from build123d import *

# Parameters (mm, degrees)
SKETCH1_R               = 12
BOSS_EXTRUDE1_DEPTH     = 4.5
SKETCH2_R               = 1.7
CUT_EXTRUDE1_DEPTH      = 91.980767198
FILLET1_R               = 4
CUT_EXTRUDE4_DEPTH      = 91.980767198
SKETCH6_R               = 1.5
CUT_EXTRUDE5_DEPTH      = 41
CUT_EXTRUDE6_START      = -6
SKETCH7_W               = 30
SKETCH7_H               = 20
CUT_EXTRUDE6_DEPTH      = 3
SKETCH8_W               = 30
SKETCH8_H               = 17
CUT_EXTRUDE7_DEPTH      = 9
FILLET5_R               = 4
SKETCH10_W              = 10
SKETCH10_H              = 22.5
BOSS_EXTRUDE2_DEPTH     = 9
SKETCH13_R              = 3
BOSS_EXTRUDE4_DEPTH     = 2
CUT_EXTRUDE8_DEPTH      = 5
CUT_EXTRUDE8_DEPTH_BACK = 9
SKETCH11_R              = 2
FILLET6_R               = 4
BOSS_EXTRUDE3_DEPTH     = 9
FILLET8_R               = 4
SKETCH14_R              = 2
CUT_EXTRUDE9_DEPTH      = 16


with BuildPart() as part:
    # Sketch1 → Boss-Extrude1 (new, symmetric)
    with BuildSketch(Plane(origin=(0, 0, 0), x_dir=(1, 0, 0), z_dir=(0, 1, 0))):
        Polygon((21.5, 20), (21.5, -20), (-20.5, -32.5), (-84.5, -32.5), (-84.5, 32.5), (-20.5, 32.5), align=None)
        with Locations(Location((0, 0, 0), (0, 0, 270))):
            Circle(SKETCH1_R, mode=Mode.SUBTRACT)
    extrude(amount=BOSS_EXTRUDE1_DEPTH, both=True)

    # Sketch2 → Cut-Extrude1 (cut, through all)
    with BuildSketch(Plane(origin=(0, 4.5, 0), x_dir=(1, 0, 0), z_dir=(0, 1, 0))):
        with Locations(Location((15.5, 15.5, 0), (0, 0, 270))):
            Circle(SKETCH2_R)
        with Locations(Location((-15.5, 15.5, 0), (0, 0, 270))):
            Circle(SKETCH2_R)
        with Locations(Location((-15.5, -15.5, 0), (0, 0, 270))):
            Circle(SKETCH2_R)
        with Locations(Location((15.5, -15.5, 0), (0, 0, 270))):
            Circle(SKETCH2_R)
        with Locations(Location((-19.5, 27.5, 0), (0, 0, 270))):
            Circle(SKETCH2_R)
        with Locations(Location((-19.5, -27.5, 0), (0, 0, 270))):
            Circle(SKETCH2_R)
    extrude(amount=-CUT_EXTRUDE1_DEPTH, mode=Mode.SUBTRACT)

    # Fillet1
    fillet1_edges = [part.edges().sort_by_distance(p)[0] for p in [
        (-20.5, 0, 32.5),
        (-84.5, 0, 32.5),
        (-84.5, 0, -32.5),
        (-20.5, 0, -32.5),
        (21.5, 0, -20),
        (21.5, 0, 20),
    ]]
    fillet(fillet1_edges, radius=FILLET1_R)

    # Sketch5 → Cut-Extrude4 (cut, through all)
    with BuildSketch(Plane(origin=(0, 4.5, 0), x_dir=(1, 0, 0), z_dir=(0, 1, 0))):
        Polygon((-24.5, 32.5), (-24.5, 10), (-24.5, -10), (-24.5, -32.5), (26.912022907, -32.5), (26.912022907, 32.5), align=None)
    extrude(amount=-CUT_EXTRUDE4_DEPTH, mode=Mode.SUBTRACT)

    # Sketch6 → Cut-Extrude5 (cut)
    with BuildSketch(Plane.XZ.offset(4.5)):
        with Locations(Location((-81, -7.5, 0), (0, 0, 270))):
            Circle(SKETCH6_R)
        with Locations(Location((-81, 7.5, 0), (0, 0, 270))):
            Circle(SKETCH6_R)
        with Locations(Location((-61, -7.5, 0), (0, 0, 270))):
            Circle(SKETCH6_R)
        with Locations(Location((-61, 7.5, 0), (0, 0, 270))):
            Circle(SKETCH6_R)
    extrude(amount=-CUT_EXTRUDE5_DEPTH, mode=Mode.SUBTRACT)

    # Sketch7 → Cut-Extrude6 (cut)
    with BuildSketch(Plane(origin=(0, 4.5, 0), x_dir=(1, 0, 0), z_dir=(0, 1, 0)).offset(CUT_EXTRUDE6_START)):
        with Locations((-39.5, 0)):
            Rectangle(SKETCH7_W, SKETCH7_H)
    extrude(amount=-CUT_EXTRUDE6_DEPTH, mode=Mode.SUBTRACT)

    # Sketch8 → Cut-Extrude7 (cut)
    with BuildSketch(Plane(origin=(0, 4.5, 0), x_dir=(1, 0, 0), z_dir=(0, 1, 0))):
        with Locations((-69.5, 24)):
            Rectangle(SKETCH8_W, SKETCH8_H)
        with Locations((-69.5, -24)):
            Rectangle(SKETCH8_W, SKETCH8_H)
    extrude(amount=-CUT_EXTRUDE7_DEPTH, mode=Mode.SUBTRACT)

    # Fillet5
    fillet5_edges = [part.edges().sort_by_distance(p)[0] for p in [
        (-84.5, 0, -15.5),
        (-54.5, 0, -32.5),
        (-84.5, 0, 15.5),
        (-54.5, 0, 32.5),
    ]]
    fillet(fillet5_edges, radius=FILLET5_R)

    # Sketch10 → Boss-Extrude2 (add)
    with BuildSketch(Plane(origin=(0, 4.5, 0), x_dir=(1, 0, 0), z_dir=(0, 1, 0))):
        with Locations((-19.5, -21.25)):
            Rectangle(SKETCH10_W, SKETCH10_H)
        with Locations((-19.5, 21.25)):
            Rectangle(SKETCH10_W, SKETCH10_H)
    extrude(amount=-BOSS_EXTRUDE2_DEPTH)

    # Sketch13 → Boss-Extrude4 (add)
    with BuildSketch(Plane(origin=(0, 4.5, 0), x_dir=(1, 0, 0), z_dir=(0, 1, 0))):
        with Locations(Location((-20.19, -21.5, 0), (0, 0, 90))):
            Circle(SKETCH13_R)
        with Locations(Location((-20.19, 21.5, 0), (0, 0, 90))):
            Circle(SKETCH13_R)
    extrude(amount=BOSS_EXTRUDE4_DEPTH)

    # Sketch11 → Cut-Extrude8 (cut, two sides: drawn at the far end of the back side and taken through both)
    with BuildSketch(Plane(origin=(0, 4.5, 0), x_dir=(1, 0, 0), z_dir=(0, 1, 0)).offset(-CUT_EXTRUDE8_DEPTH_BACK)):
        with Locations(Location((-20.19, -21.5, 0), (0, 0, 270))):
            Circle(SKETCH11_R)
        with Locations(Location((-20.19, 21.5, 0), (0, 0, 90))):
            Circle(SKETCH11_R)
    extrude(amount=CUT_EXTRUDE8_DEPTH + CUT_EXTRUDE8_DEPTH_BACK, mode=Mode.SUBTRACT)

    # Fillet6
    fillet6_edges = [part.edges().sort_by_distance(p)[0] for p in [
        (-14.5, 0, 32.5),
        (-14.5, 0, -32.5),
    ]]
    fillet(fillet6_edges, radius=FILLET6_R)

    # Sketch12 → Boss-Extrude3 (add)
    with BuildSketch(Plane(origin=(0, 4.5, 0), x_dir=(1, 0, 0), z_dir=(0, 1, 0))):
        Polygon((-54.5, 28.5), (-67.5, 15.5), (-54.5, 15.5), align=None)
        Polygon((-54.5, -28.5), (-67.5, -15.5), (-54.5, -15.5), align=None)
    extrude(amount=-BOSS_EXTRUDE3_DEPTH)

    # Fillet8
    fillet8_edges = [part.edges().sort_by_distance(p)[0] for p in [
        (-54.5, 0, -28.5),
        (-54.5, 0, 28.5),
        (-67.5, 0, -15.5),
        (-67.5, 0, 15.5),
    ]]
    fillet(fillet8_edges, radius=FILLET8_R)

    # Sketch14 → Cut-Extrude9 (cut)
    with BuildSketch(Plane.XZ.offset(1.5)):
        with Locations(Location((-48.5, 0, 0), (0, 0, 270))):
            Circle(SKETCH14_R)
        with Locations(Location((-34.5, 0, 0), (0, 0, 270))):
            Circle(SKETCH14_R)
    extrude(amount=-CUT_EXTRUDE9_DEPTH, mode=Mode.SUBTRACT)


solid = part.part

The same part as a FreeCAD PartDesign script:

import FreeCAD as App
import Part
import Sketcher
from FreeCAD import Vector
Q = App.Units.Quantity


def edges_at(feature, points):
    """Names of the edges that pass closest to the given points."""
    edges = feature.Shape.Edges
    near = lambda p: min(range(len(edges)), key=lambda i: edges[i].distToShape(Part.Vertex(*p))[0])
    return sorted({f"Edge{near(p) + 1}" for p in points})


def add_polygon(sketch, points):
    """Adds a closed chain of lines whose ends are joined by coincident constraints."""
    first, n = sketch.GeometryCount, len(points)
    for a, b in zip(points, points[1:] + points[:1]):
        sketch.addGeometry(Part.LineSegment(App.Vector(*a, 0), App.Vector(*b, 0)), False)
    for i in range(n):
        sketch.addConstraint(Sketcher.Constraint("Coincident", first + i, 2, first + (i + 1) % n, 1))

doc = App.newDocument("Part")
body = doc.addObject("PartDesign::Body", "Body")

sketch1 = body.newObject("Sketcher::SketchObject", "Sketch")
sketch1.AttachmentSupport = (doc.getObject("XZ_Plane"), [""])
sketch1.MapMode = "FlatFace"
add_polygon(sketch1, [(21.5, 20), (21.5, -20), (-20.5, -32.5), (-84.5, -32.5), (-84.5, 32.5), (-20.5, 32.5)])
sketch1.addGeometry(Part.Circle(Vector(0, 0, 0), Vector(0, 0, 1), 12), False)
sketch1.addConstraint(Sketcher.Constraint("Vertical", 0))
sketch1.addConstraint(Sketcher.Constraint("Horizontal", 2))
sketch1.addConstraint(Sketcher.Constraint("Vertical", 3))
sketch1.addConstraint(Sketcher.Constraint("Horizontal", 4))
sketch1.addConstraint(Sketcher.Constraint("Coincident", 6, 3, -1, 1))
sketch1.addConstraint(Sketcher.Constraint("Symmetric", 1, 2, 4, 2, -1))
sketch1.addConstraint(Sketcher.Constraint("Equal", 1, 5))
sketch1.addConstraint(Sketcher.Constraint("Diameter", 6, Q("24 mm")))
sketch1.addConstraint(Sketcher.Constraint("DistanceX", 2, 2, 2, 1, Q("64 mm")))
sketch1.addConstraint(Sketcher.Constraint("DistanceY", 0, 2, 0, 1, Q("40 mm")))
sketch1.addConstraint(Sketcher.Constraint("DistanceY", 3, 1, 3, 2, Q("65 mm")))
sketch1.addConstraint(Sketcher.Constraint("DistanceX", 1, 2, 0, 2, Q("42 mm")))
sketch1.addConstraint(Sketcher.Constraint("DistanceX", -1, 1, 0, 2, Q("21.5 mm")))
pad1 = body.newObject("PartDesign::Pad", "Pad")
pad1.Profile = sketch1
pad1.Length = 9
pad1.Midplane = True

sketch2 = body.newObject("Sketcher::SketchObject", "Sketch001")
sketch2.AttachmentSupport = (doc.getObject("XZ_Plane"), [""])
sketch2.MapMode = "FlatFace"
sketch2.AttachmentOffset = App.Placement(Vector(0, 0, -4.5), App.Rotation())
sketch2.addGeometry(Part.Circle(Vector(15.5, -15.5, 0), Vector(0, 0, 1), 1.7), False)
sketch2.addGeometry(Part.Circle(Vector(-15.5, -15.5, 0), Vector(0, 0, 1), 1.7), False)
sketch2.addGeometry(Part.Circle(Vector(-15.5, 15.5, 0), Vector(0, 0, 1), 1.7), False)
sketch2.addGeometry(Part.Circle(Vector(15.5, 15.5, 0), Vector(0, 0, 1), 1.7), False)
sketch2.addGeometry(Part.Circle(Vector(-19.5, -27.5, 0), Vector(0, 0, 1), 1.7), False)
sketch2.addGeometry(Part.Circle(Vector(-19.5, 27.5, 0), Vector(0, 0, 1), 1.7), False)
sketch2.addConstraint(Sketcher.Constraint("Equal", 0, 1))
sketch2.addConstraint(Sketcher.Constraint("Equal", 1, 2))
sketch2.addConstraint(Sketcher.Constraint("Equal", 2, 3))
sketch2.addConstraint(Sketcher.Constraint("Equal", 3, 4))
sketch2.addConstraint(Sketcher.Constraint("Equal", 4, 5))
sketch2.addConstraint(Sketcher.Constraint("Symmetric", 0, 3, 2, 3, -1, 1))
sketch2.addConstraint(Sketcher.Constraint("Symmetric", 1, 3, 3, 3, -1, 1))
sketch2.addConstraint(Sketcher.Constraint("Symmetric", 0, 3, 1, 3, -2))
sketch2.addConstraint(Sketcher.Constraint("Symmetric", 4, 3, 5, 3, -1))
sketch2.addConstraint(Sketcher.Constraint("Diameter", 0, Q("3.4 mm")))
sketch2.addConstraint(Sketcher.Constraint("DistanceX", 1, 3, 0, 3, Q("31 mm")))
sketch2.addConstraint(Sketcher.Constraint("DistanceY", 1, 3, 2, 3, Q("31 mm")))
sketch2.addConstraint(Sketcher.Constraint("DistanceX", 4, 3, 1, 3, Q("4 mm")))
sketch2.addConstraint(Sketcher.Constraint("DistanceY", 4, 3, 1, 3, Q("12 mm")))
pocket1 = body.newObject("PartDesign::Pocket", "Pocket")
pocket1.Profile = sketch2
pocket1.Type = "ThroughAll"
pocket1.Reversed = True
doc.recompute()

fillet = body.newObject("PartDesign::Fillet", "Fillet")
fillet.Base = (pocket1, edges_at(pocket1, [
    (-20.5, 0, 32.5),
    (-84.5, 0, 32.5),
    (-84.5, 0, -32.5),
    (-20.5, 0, -32.5),
    (21.5, 0, -20),
    (21.5, 0, 20),
]))
fillet.Radius = 4

sketch3 = body.newObject("Sketcher::SketchObject", "Sketch002")
sketch3.AttachmentSupport = (doc.getObject("XZ_Plane"), [""])
sketch3.MapMode = "FlatFace"
sketch3.AttachmentOffset = App.Placement(Vector(0, 0, -4.5), App.Rotation())
add_polygon(sketch3, [(-24.5, -32.5), (-24.5, 32.5), (26.912023, 32.5), (26.912023, -32.5)])
sketch3.addConstraint(Sketcher.Constraint("Vertical", 0))
sketch3.addConstraint(Sketcher.Constraint("Horizontal", 1))
sketch3.addConstraint(Sketcher.Constraint("Vertical", 2))
sketch3.addConstraint(Sketcher.Constraint("Horizontal", 3))
sketch3.addConstraint(Sketcher.Constraint("DistanceY", 0, 1, 0, 2, Q("65 mm")))
sketch3.addConstraint(Sketcher.Constraint("DistanceX", 0, 2, -1, 1, Q("24.5 mm")))
sketch3.addConstraint(Sketcher.Constraint("DistanceY", -1, 1, 0, 2, Q("32.5 mm")))
sketch3.addConstraint(Sketcher.Constraint("DistanceX", 1, 1, 1, 2, Q("51.412023 mm")))
pocket2 = body.newObject("PartDesign::Pocket", "Pocket001")
pocket2.Profile = sketch3
pocket2.Type = "ThroughAll"
pocket2.Reversed = True

sketch4 = body.newObject("Sketcher::SketchObject", "Sketch003")
sketch4.AttachmentSupport = (doc.getObject("XZ_Plane"), [""])
sketch4.MapMode = "FlatFace"
sketch4.AttachmentOffset = App.Placement(Vector(0, 0, 4.5), App.Rotation())
sketch4.addGeometry(Part.Circle(Vector(-81, -7.5, 0), Vector(0, 0, 1), 1.5), False)
sketch4.addGeometry(Part.Circle(Vector(-81, 7.5, 0), Vector(0, 0, 1), 1.5), False)
sketch4.addGeometry(Part.Circle(Vector(-61, -7.5, 0), Vector(0, 0, 1), 1.5), False)
sketch4.addGeometry(Part.Circle(Vector(-61, 7.5, 0), Vector(0, 0, 1), 1.5), False)
sketch4.addConstraint(Sketcher.Constraint("Equal", 0, 1))
sketch4.addConstraint(Sketcher.Constraint("Equal", 1, 2))
sketch4.addConstraint(Sketcher.Constraint("Equal", 2, 3))
sketch4.addConstraint(Sketcher.Constraint("Symmetric", 0, 3, 1, 3, -1))
sketch4.addConstraint(Sketcher.Constraint("Symmetric", 2, 3, 3, 3, -1))
sketch4.addConstraint(Sketcher.Constraint("Horizontal", 0, 3, 2, 3))
sketch4.addConstraint(Sketcher.Constraint("Diameter", 0, Q("3 mm")))
sketch4.addConstraint(Sketcher.Constraint("DistanceX", 0, 3, -1, 1, Q("81 mm")))
sketch4.addConstraint(Sketcher.Constraint("DistanceX", 2, 3, -1, 1, Q("61 mm")))
sketch4.addConstraint(Sketcher.Constraint("DistanceY", 0, 3, 1, 3, Q("15 mm")))
pocket3 = body.newObject("PartDesign::Pocket", "Pocket002")
pocket3.Profile = sketch4
pocket3.Length = 41

sketch5 = body.newObject("Sketcher::SketchObject", "Sketch004")
sketch5.AttachmentSupport = (doc.getObject("XZ_Plane"), [""])
sketch5.MapMode = "FlatFace"
sketch5.AttachmentOffset = App.Placement(Vector(0, 0, 1.5), App.Rotation())
add_polygon(sketch5, [(-54.5, -10), (-54.5, 10), (-24.5, 10), (-24.5, -10)])
sketch5.addConstraint(Sketcher.Constraint("Vertical", 0))
sketch5.addConstraint(Sketcher.Constraint("Horizontal", 1))
sketch5.addConstraint(Sketcher.Constraint("Vertical", 2))
sketch5.addConstraint(Sketcher.Constraint("Horizontal", 3))
sketch5.addConstraint(Sketcher.Constraint("DistanceX", 1, 1, 1, 2, Q("30 mm")))
sketch5.addConstraint(Sketcher.Constraint("DistanceY", 0, 1, 0, 2, Q("20 mm")))
sketch5.addConstraint(Sketcher.Constraint("DistanceY", -1, 1, 0, 2, Q("10 mm")))
sketch5.addConstraint(Sketcher.Constraint("DistanceX", 0, 2, -1, 1, Q("54.5 mm")))
pocket4 = body.newObject("PartDesign::Pocket", "Pocket003")
pocket4.Profile = sketch5
pocket4.Length = 3
pocket4.Reversed = True

sketch6 = body.newObject("Sketcher::SketchObject", "Sketch005")
sketch6.AttachmentSupport = (doc.getObject("XZ_Plane"), [""])
sketch6.MapMode = "FlatFace"
sketch6.AttachmentOffset = App.Placement(Vector(0, 0, -4.5), App.Rotation())
add_polygon(sketch6, [(-84.5, -32.5), (-84.5, -15.5), (-54.5, -15.5), (-54.5, -32.5)])
add_polygon(sketch6, [(-84.5, 15.5), (-84.5, 32.5), (-54.5, 32.5), (-54.5, 15.5)])
sketch6.addConstraint(Sketcher.Constraint("Vertical", 0))
sketch6.addConstraint(Sketcher.Constraint("Horizontal", 1))
sketch6.addConstraint(Sketcher.Constraint("Vertical", 2))
sketch6.addConstraint(Sketcher.Constraint("Horizontal", 3))
sketch6.addConstraint(Sketcher.Constraint("Vertical", 4))
sketch6.addConstraint(Sketcher.Constraint("Horizontal", 5))
sketch6.addConstraint(Sketcher.Constraint("Vertical", 6))
sketch6.addConstraint(Sketcher.Constraint("Horizontal", 7))
sketch6.addConstraint(Sketcher.Constraint("Symmetric", 3, 2, 4, 2, -1))
sketch6.addConstraint(Sketcher.Constraint("Symmetric", 1, 2, 6, 2, -1))
sketch6.addConstraint(Sketcher.Constraint("DistanceX", 1, 1, 1, 2, Q("30 mm")))
sketch6.addConstraint(Sketcher.Constraint("DistanceY", 0, 1, 0, 2, Q("17 mm")))
sketch6.addConstraint(Sketcher.Constraint("DistanceY", 0, 2, 4, 2, Q("48 mm")))
sketch6.addConstraint(Sketcher.Constraint("DistanceX", 0, 2, -1, 1, Q("84.5 mm")))
pocket5 = body.newObject("PartDesign::Pocket", "Pocket004")
pocket5.Profile = sketch6
pocket5.Length = 9
pocket5.Reversed = True
doc.recompute()

fillet2 = body.newObject("PartDesign::Fillet", "Fillet001")
fillet2.Base = (pocket5, edges_at(pocket5, [
    (-84.5, 0, -15.5),
    (-54.5, 0, -32.5),
    (-84.5, 0, 15.5),
    (-54.5, 0, 32.5),
]))
fillet2.Radius = 4

sketch7 = body.newObject("Sketcher::SketchObject", "Sketch006")
sketch7.AttachmentSupport = (doc.getObject("XZ_Plane"), [""])
sketch7.MapMode = "FlatFace"
sketch7.AttachmentOffset = App.Placement(Vector(0, 0, -4.5), App.Rotation())
add_polygon(sketch7, [(-24.5, 10), (-24.5, 32.5), (-14.5, 32.5), (-14.5, 10)])
add_polygon(sketch7, [(-24.5, -32.5), (-24.5, -10), (-14.5, -10), (-14.5, -32.5)])
sketch7.addConstraint(Sketcher.Constraint("Vertical", 0))
sketch7.addConstraint(Sketcher.Constraint("Horizontal", 1))
sketch7.addConstraint(Sketcher.Constraint("Vertical", 2))
sketch7.addConstraint(Sketcher.Constraint("Horizontal", 3))
sketch7.addConstraint(Sketcher.Constraint("Vertical", 4))
sketch7.addConstraint(Sketcher.Constraint("Horizontal", 5))
sketch7.addConstraint(Sketcher.Constraint("Vertical", 6))
sketch7.addConstraint(Sketcher.Constraint("Horizontal", 7))
sketch7.addConstraint(Sketcher.Constraint("Symmetric", 3, 2, 4, 2, -1))
sketch7.addConstraint(Sketcher.Constraint("Symmetric", 1, 2, 6, 2, -1))
sketch7.addConstraint(Sketcher.Constraint("DistanceX", 1, 1, 1, 2, Q("10 mm")))
sketch7.addConstraint(Sketcher.Constraint("DistanceY", 0, 1, 0, 2, Q("22.5 mm")))
sketch7.addConstraint(Sketcher.Constraint("DistanceY", -1, 1, 2, 2, Q("10 mm")))
sketch7.addConstraint(Sketcher.Constraint("DistanceX", 0, 2, -1, 1, Q("24.5 mm")))
pad2 = body.newObject("PartDesign::Pad", "Pad001")
pad2.Profile = sketch7
pad2.Length = 9

sketch8 = body.newObject("Sketcher::SketchObject", "Sketch007")
sketch8.AttachmentSupport = (doc.getObject("XZ_Plane"), [""])
sketch8.MapMode = "FlatFace"
sketch8.AttachmentOffset = App.Placement(Vector(0, 0, -4.5), App.Rotation())
sketch8.addGeometry(Part.Circle(Vector(-20.19, 21.5, 0), Vector(0, 0, 1), 3), False)
sketch8.addGeometry(Part.Circle(Vector(-20.19, -21.5, 0), Vector(0, 0, 1), 3), False)
sketch8.addConstraint(Sketcher.Constraint("Equal", 0, 1))
sketch8.addConstraint(Sketcher.Constraint("Symmetric", 0, 3, 1, 3, -1))
sketch8.addConstraint(Sketcher.Constraint("Diameter", 0, Q("6 mm")))
sketch8.addConstraint(Sketcher.Constraint("DistanceY", 1, 3, 0, 3, Q("43 mm")))
sketch8.addConstraint(Sketcher.Constraint("DistanceX", 0, 3, -1, 1, Q("20.19 mm")))
pad3 = body.newObject("PartDesign::Pad", "Pad002")
pad3.Profile = sketch8
pad3.Length = 2
pad3.Reversed = True

sketch9 = body.newObject("Sketcher::SketchObject", "Sketch008")
sketch9.AttachmentSupport = (doc.getObject("XZ_Plane"), [""])
sketch9.MapMode = "FlatFace"
sketch9.AttachmentOffset = App.Placement(Vector(0, 0, -4.5), App.Rotation())
sketch9.addGeometry(Part.Circle(Vector(-20.19, 21.5, 0), Vector(0, 0, 1), 2), False)
sketch9.addGeometry(Part.Circle(Vector(-20.19, -21.5, 0), Vector(0, 0, 1), 2), False)
sketch9.addConstraint(Sketcher.Constraint("Equal", 0, 1))
sketch9.addConstraint(Sketcher.Constraint("Symmetric", 0, 3, 1, 3, -1))
sketch9.addConstraint(Sketcher.Constraint("Diameter", 0, Q("4 mm")))
sketch9.addConstraint(Sketcher.Constraint("DistanceY", 1, 3, 0, 3, Q("43 mm")))
sketch9.addConstraint(Sketcher.Constraint("DistanceX", 0, 3, -1, 1, Q("20.19 mm")))
pocket6 = body.newObject("PartDesign::Pocket", "Pocket005")
pocket6.Profile = sketch9
pocket6.Type = "ThroughAll"
pocket6.Midplane = True
doc.recompute()

fillet3 = body.newObject("PartDesign::Fillet", "Fillet002")
fillet3.Base = (pocket6, edges_at(pocket6, [(-14.5, 0, 32.5), (-14.5, 0, -32.5)]))
fillet3.Radius = 4

sketch10 = body.newObject("Sketcher::SketchObject", "Sketch009")
sketch10.AttachmentSupport = (doc.getObject("XZ_Plane"), [""])
sketch10.MapMode = "FlatFace"
sketch10.AttachmentOffset = App.Placement(Vector(0, 0, -4.5), App.Rotation())
add_polygon(sketch10, [(-54.5, -28.5), (-67.5, -15.5), (-54.5, -15.5)])
add_polygon(sketch10, [(-67.5, 15.5), (-54.5, 28.5), (-54.5, 15.5)])
sketch10.addConstraint(Sketcher.Constraint("Horizontal", 1))
sketch10.addConstraint(Sketcher.Constraint("Vertical", 2))
sketch10.addConstraint(Sketcher.Constraint("Vertical", 4))
sketch10.addConstraint(Sketcher.Constraint("Horizontal", 5))
sketch10.addConstraint(Sketcher.Constraint("Symmetric", 2, 2, 3, 2, -1))
sketch10.addConstraint(Sketcher.Constraint("Symmetric", 0, 2, 5, 2, -1))
sketch10.addConstraint(Sketcher.Constraint("Perpendicular", 0, 3))
sketch10.addConstraint(Sketcher.Constraint("DistanceX", 1, 1, 1, 2, Q("13 mm")))
sketch10.addConstraint(Sketcher.Constraint("DistanceY", 1, 2, 3, 2, Q("44 mm")))
sketch10.addConstraint(Sketcher.Constraint("DistanceX", 0, 2, -1, 1, Q("67.5 mm")))
pad4 = body.newObject("PartDesign::Pad", "Pad003")
pad4.Profile = sketch10
pad4.Length = 9
doc.recompute()

fillet4 = body.newObject("PartDesign::Fillet", "Fillet003")
fillet4.Base = (pad4, edges_at(pad4, [
    (-54.5, 0, -28.5),
    (-54.5, 0, 28.5),
    (-67.5, 0, -15.5),
    (-67.5, 0, 15.5),
]))
fillet4.Radius = 4

sketch11 = body.newObject("Sketcher::SketchObject", "Sketch010")
sketch11.AttachmentSupport = (doc.getObject("XZ_Plane"), [""])
sketch11.MapMode = "FlatFace"
sketch11.AttachmentOffset = App.Placement(Vector(0, 0, 1.5), App.Rotation())
sketch11.addGeometry(Part.Circle(Vector(-48.5, 0, 0), Vector(0, 0, 1), 2), False)
sketch11.addGeometry(Part.Circle(Vector(-34.5, 0, 0), Vector(0, 0, 1), 2), False)
sketch11.addConstraint(Sketcher.Constraint("Equal", 0, 1))
sketch11.addConstraint(Sketcher.Constraint("PointOnObject", 0, 3, -1))
sketch11.addConstraint(Sketcher.Constraint("PointOnObject", 1, 3, -1))
sketch11.addConstraint(Sketcher.Constraint("Diameter", 0, Q("4 mm")))
sketch11.addConstraint(Sketcher.Constraint("DistanceX", 0, 3, 1, 3, Q("14 mm")))
sketch11.addConstraint(Sketcher.Constraint("DistanceX", 0, 3, -1, 1, Q("48.5 mm")))
pocket7 = body.newObject("PartDesign::Pocket", "Pocket006")
pocket7.Profile = sketch11
pocket7.Length = 16

doc.recompute()
